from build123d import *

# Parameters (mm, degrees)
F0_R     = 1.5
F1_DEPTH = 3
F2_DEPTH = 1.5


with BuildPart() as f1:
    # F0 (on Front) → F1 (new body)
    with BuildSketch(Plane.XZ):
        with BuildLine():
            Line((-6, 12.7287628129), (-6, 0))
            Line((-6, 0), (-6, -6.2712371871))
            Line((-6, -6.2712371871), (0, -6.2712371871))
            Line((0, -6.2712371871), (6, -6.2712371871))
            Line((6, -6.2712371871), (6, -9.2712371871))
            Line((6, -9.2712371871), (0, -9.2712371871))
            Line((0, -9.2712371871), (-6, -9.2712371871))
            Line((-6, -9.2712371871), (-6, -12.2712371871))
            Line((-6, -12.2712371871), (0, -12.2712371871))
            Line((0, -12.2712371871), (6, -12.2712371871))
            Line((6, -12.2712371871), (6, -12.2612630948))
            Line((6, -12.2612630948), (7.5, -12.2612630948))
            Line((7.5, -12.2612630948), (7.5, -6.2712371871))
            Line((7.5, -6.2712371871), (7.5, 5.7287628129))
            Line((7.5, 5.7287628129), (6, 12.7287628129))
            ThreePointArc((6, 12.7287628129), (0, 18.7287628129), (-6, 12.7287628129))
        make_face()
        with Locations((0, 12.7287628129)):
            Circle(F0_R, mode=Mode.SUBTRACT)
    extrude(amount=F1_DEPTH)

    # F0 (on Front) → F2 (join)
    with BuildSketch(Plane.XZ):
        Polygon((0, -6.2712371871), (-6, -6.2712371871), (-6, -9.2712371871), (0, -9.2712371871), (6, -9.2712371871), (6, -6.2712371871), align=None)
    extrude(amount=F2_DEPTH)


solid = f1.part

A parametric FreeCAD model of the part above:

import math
import FreeCAD as App
import Part
import Sketcher

doc = App.newDocument("Part")
body = doc.addObject("PartDesign::Body", "Body")

sketch1 = doc.addObject("Sketcher::SketchObject", "Sketch")
body.addObject(sketch1)
sketch1.AttachmentSupport = (doc.XZ_Plane, [""])
sketch1.MapMode = "FlatFace"
sketch1.addGeometry([
    Part.LineSegment(App.Vector(-6, 12.729, 0), App.Vector(-6, -6.271, 0)),
    Part.LineSegment(App.Vector(-6, -6.271, 0), App.Vector(6, -6.271, 0)),
    Part.LineSegment(App.Vector(6, -6.271, 0), App.Vector(6, -9.271, 0)),
    Part.LineSegment(App.Vector(6, -9.271, 0), App.Vector(-6, -9.271, 0)),
    Part.LineSegment(App.Vector(-6, -9.271, 0), App.Vector(-6, -12.271, 0)),
    Part.LineSegment(App.Vector(-6, -12.271, 0), App.Vector(6, -12.271, 0)),
    Part.LineSegment(App.Vector(6, -12.271, 0), App.Vector(6, -12.261, 0)),
    Part.LineSegment(App.Vector(6, -12.261, 0), App.Vector(7.5, -12.261, 0)),
    Part.LineSegment(App.Vector(7.5, -12.261, 0), App.Vector(7.5, 5.729, 0)),
    Part.LineSegment(App.Vector(7.5, 5.729, 0), App.Vector(6, 12.729, 0)),
    Part.ArcOfCircle(Part.Circle(App.Vector(0, 12.729, 0), App.Vector(0, 0, 1), 6), math.radians(0), math.radians(180)),
    Part.Circle(App.Vector(0, 12.729, 0), App.Vector(0, 0, 1), 1.5),
], False)
sketch1.addConstraint([
    Sketcher.Constraint("Coincident", 0, 2, 1, 1),
    Sketcher.Constraint("Coincident", 1, 2, 2, 1),
    Sketcher.Constraint("Coincident", 2, 2, 3, 1),
    Sketcher.Constraint("Coincident", 3, 2, 4, 1),
    Sketcher.Constraint("Coincident", 4, 2, 5, 1),
    Sketcher.Constraint("Coincident", 5, 2, 6, 1),
    Sketcher.Constraint("Coincident", 6, 2, 7, 1),
    Sketcher.Constraint("Coincident", 7, 2, 8, 1),
    Sketcher.Constraint("Coincident", 8, 2, 9, 1),
    Sketcher.Constraint("Coincident", 9, 2, 10, 1),
    Sketcher.Constraint("Tangent", 10, 2, 0, 1),
    Sketcher.Constraint("Vertical", 0),
    Sketcher.Constraint("Horizontal", 1),
    Sketcher.Constraint("Vertical", 2),
    Sketcher.Constraint("Horizontal", 3),
    Sketcher.Constraint("Vertical", 4),
    Sketcher.Constraint("Horizontal", 5),
    Sketcher.Constraint("Vertical", 6),
    Sketcher.Constraint("Horizontal", 7),
    Sketcher.Constraint("Vertical", 8),
    Sketcher.Constraint("Coincident", 11, 3, 10, 3),
    Sketcher.Constraint("Symmetric", 9, 2, 10, 2, -2),
    Sketcher.Constraint("Vertical", 0, 2, 3, 2),
    Sketcher.Constraint("Vertical", 2, 2, 5, 2),
    Sketcher.Constraint("Vertical", 6, 2, 9, 2),
    Sketcher.Constraint("Equal", 2, 4),
    Sketcher.Constraint("Diameter", 11, 3.0),
    Sketcher.Constraint("Radius", 10, 6.0),
    Sketcher.Constraint("DistanceY", 0, 2, 0, 1, 19.0),
    Sketcher.Constraint("DistanceY", 2, 2, 2, 1, 3.0),
    Sketcher.Constraint("DistanceX", 7, 1, 7, 2, 1.5),
    Sketcher.Constraint("DistanceY", 8, 2, 10, 3, 7.0),
    Sketcher.Constraint("DistanceY", 6, 1, 6, 2, 0.009974),
    Sketcher.Constraint("DistanceY", -1, 1, 10, 3, 12.728763),
])
pad1 = doc.addObject("PartDesign::Pad", "Pad")
body.addObject(pad1)
pad1.Profile = sketch1
pad1.Length = 3

sketch2 = doc.addObject("Sketcher::SketchObject", "Sketch001")
body.addObject(sketch2)
sketch2.AttachmentSupport = (doc.XZ_Plane, [""])
sketch2.MapMode = "FlatFace"
sketch2.addGeometry([
    Part.LineSegment(App.Vector(-6, -6.3, 0), App.Vector(-6, -9.3, 0)),
    Part.LineSegment(App.Vector(-6, -9.3, 0), App.Vector(6, -9.3, 0)),
    Part.LineSegment(App.Vector(6, -9.3, 0), App.Vector(6, -6.3, 0)),
    Part.LineSegment(App.Vector(6, -6.3, 0), App.Vector(-6, -6.3, 0)),
], False)
sketch2.addConstraint([
    Sketcher.Constraint("Coincident", 0, 2, 1, 1),
    Sketcher.Constraint("Coincident", 1, 2, 2, 1),
    Sketcher.Constraint("Coincident", 2, 2, 3, 1),
    Sketcher.Constraint("Coincident", 3, 2, 0, 1),
    Sketcher.Constraint("Vertical", 0),
    Sketcher.Constraint("Horizontal", 1),
    Sketcher.Constraint("Vertical", 2),
    Sketcher.Constraint("Horizontal", 3),
    Sketcher.Constraint("DistanceX", 1, 1, 1, 2, 12.0),
    Sketcher.Constraint("DistanceY", 0, 2, 0, 1, 3.0),
    Sketcher.Constraint("DistanceX", 0, 2, -1, 1, 6.0),
    Sketcher.Constraint("DistanceY", 0, 2, -1, 1, 9.271237),
])
pad2 = doc.addObject("PartDesign::Pad", "Pad001")
body.addObject(pad2)
pad2.Profile = sketch2
pad2.Length = 1.5

doc.recompute()
